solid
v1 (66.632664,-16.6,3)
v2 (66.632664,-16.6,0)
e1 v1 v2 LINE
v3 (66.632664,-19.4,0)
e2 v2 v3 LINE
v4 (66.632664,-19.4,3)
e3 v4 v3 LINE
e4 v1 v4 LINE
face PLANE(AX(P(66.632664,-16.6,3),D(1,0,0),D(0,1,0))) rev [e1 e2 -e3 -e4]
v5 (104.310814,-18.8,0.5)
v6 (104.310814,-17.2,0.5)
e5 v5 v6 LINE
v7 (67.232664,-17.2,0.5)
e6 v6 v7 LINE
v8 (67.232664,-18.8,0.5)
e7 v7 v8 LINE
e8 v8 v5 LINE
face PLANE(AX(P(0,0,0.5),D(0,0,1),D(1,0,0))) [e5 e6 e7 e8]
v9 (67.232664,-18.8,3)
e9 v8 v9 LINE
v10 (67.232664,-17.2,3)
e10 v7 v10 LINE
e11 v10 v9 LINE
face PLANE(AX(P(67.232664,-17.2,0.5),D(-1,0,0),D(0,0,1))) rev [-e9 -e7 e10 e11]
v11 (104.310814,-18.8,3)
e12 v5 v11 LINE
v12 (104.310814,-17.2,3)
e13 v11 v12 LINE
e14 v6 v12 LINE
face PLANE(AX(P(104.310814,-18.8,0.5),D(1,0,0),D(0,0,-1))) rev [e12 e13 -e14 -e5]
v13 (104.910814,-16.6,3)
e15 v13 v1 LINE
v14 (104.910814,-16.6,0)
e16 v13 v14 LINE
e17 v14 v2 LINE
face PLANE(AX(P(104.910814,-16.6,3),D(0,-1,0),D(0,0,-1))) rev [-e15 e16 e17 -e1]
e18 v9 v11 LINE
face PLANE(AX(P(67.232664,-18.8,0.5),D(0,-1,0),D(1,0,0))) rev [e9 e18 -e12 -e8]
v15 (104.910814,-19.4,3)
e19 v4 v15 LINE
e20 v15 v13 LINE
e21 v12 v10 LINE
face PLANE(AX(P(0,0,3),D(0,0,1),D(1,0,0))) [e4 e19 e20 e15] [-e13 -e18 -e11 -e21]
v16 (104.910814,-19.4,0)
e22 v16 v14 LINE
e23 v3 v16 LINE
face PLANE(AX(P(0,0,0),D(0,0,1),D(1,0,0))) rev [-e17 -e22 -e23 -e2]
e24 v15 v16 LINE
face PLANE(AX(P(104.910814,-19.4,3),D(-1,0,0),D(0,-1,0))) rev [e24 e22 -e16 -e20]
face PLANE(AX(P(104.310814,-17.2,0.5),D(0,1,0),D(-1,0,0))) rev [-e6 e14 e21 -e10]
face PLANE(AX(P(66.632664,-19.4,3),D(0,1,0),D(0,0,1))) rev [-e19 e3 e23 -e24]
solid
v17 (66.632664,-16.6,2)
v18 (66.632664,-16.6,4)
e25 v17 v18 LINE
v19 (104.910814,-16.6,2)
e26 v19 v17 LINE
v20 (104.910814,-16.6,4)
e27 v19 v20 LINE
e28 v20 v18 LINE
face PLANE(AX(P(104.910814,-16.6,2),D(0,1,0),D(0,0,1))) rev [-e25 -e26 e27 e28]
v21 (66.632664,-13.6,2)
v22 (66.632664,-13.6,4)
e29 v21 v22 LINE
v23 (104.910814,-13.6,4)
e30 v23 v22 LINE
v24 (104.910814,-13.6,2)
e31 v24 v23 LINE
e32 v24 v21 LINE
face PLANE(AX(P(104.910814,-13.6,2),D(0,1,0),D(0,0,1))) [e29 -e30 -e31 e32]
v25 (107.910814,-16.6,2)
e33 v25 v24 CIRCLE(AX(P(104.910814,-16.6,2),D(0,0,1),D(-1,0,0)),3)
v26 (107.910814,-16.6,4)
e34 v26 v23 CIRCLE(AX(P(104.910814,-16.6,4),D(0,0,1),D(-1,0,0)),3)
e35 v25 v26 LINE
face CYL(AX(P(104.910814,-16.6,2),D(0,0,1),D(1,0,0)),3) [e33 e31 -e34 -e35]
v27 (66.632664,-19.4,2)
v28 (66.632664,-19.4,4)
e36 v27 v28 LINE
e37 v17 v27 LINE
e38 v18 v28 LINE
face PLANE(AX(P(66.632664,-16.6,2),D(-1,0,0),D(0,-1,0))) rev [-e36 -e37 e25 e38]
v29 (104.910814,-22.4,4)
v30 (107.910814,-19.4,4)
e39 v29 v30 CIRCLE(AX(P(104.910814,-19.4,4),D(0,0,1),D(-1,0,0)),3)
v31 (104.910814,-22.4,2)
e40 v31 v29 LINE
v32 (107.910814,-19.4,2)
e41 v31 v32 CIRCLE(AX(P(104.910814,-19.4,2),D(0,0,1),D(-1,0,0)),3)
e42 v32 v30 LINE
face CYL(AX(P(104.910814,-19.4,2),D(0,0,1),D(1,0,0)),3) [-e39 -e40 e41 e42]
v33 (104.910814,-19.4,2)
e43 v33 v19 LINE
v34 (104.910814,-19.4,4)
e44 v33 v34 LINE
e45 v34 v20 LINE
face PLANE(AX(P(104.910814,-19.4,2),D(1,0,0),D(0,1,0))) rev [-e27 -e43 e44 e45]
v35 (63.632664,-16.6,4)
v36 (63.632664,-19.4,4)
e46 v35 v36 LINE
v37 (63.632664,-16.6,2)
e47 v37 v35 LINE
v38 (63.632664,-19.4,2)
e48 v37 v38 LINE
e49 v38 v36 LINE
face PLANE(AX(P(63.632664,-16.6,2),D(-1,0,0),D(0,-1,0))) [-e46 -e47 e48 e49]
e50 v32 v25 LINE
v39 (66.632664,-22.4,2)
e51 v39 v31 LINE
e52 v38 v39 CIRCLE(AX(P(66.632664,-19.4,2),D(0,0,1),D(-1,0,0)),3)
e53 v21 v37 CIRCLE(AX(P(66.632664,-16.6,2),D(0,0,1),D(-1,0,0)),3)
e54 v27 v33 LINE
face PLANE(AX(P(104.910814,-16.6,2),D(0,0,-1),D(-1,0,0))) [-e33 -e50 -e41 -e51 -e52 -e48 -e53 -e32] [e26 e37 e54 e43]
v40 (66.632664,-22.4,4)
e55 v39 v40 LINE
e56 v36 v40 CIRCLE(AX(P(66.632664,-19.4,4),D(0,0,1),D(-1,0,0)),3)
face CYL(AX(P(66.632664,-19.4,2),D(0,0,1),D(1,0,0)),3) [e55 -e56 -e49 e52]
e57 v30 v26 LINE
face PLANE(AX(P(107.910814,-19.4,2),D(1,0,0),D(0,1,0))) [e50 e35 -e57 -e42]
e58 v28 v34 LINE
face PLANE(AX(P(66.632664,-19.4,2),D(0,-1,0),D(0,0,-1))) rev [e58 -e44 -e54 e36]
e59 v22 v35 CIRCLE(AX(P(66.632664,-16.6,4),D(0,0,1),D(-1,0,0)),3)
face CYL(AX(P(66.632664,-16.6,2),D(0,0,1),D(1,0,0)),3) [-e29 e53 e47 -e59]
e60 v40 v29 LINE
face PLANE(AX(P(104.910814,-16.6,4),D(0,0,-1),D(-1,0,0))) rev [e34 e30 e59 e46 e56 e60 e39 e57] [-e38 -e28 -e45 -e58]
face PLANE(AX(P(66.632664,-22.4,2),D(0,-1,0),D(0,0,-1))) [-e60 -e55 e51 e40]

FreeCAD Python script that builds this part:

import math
import FreeCAD as App
import Part
import Sketcher
Q = App.Units.Quantity

doc = App.newDocument("Part")
params = doc.addObject("Spreadsheet::Sheet", "Params")
for row, (alias, value) in enumerate([
    ("sketch1_height", "2.8 mm"),
    ("pad1_length", "3 mm"),
    ("sketch2_height", "1.6 mm"),
    ("pocket1_length", "2.5 mm"),
    ("sketch3_radius", "3 mm"),
    ("sketch3_height", "2.8 mm"),
    ("pad2_length", "1 mm"),
    ("pad2_length2", "1 mm"),
], start=1):
    params.set(f"A{row}", alias)
    params.set(f"B{row}", "=" + value)
    params.setAlias(f"B{row}", alias)

body = doc.addObject("PartDesign::Body", "Body")

# Sketch on XY plane
sketch1 = doc.addObject("Sketcher::SketchObject", "Sketch")
body.addObject(sketch1)
sketch1.AttachmentSupport = (doc.XY_Plane, [""])
sketch1.MapMode = "FlatFace"
sketch1.addGeometry([
    Part.LineSegment(App.Vector(66.632664, -16.6, 0), App.Vector(66.632664, -19.4, 0)),
    Part.LineSegment(App.Vector(66.632664, -19.4, 0), App.Vector(104.910814, -19.4, 0)),
    Part.LineSegment(App.Vector(104.910814, -19.4, 0), App.Vector(104.910814, -16.6, 0)),
    Part.LineSegment(App.Vector(104.910814, -16.6, 0), App.Vector(66.632664, -16.6, 0)),
], False)
sketch1.addConstraint([
    Sketcher.Constraint("Coincident", 0, 2, 1, 1),
    Sketcher.Constraint("Coincident", 1, 2, 2, 1),
    Sketcher.Constraint("Coincident", 2, 2, 3, 1),
    Sketcher.Constraint("Coincident", 3, 2, 0, 1),
    Sketcher.Constraint("Vertical", 0),
    Sketcher.Constraint("Horizontal", 1),
    Sketcher.Constraint("Vertical", 2),
    Sketcher.Constraint("Horizontal", 3),
    Sketcher.Constraint("DistanceY", 0, 2, 0, 1, Q("2.8 mm")),
    Sketcher.Constraint("DistanceY", 0, 2, -1, 1, Q("19.4 mm")),
    Sketcher.Constraint("DistanceX", 1, 1, 1, 2, Q("38.278151 mm")),
    Sketcher.Constraint("DistanceX", -1, 1, 0, 2, Q("66.632664 mm")),
])
sketch1.setExpression("Constraints[8]", "Params.sketch1_height")
pad1 = doc.addObject("PartDesign::Pad", "Pad")
body.addObject(pad1)
pad1.Profile = sketch1
pad1.setExpression("Length", "Params.pad1_length")

# Sketch on XY plane
sketch2 = doc.addObject("Sketcher::SketchObject", "Sketch001")
body.addObject(sketch2)
sketch2.AttachmentSupport = (doc.XY_Plane, [""])
sketch2.MapMode = "FlatFace"
sketch2.AttachmentOffset = App.Placement(App.Vector(0, 0, 3), App.Rotation())
sketch2.addGeometry([
    Part.LineSegment(App.Vector(67.232664, -17.2, 0), App.Vector(67.232664, -18.8, 0)),
    Part.LineSegment(App.Vector(67.232664, -18.8, 0), App.Vector(104.310814, -18.8, 0)),
    Part.LineSegment(App.Vector(104.310814, -18.8, 0), App.Vector(104.310814, -17.2, 0)),
    Part.LineSegment(App.Vector(104.310814, -17.2, 0), App.Vector(67.232664, -17.2, 0)),
], False)
sketch2.addConstraint([
    Sketcher.Constraint("Coincident", 0, 2, 1, 1),
    Sketcher.Constraint("Coincident", 1, 2, 2, 1),
    Sketcher.Constraint("Coincident", 2, 2, 3, 1),
    Sketcher.Constraint("Coincident", 3, 2, 0, 1),
    Sketcher.Constraint("Vertical", 0),
    Sketcher.Constraint("Horizontal", 1),
    Sketcher.Constraint("Vertical", 2),
    Sketcher.Constraint("Horizontal", 3),
    Sketcher.Constraint("DistanceY", 0, 2, 0, 1, Q("1.6 mm")),
    Sketcher.Constraint("DistanceY", 0, 2, -1, 1, Q("18.8 mm")),
    Sketcher.Constraint("DistanceX", 1, 1, 1, 2, Q("37.078151 mm")),
    Sketcher.Constraint("DistanceX", -1, 1, 0, 2, Q("67.232664 mm")),
])
sketch2.setExpression("Constraints[8]", "Params.sketch2_height")
pocket1 = doc.addObject("PartDesign::Pocket", "Pocket")
body.addObject(pocket1)
pocket1.Profile = sketch2
pocket1.setExpression("Length", "Params.pocket1_length")
body2 = doc.addObject("PartDesign::Body", "Body001")

# Sketch on XY plane
sketch3 = doc.addObject("Sketcher::SketchObject", "Sketch002")
body2.addObject(sketch3)
sketch3.AttachmentSupport = (doc.getObject("XY_Plane001"), [""])
sketch3.MapMode = "FlatFace"
sketch3.AttachmentOffset = App.Placement(App.Vector(0, 0, 3), App.Rotation())
sketch3.addGeometry([
    Part.LineSegment(App.Vector(104.910814, -13.6, 0), App.Vector(66.632664, -13.6, 0)),  # 0
    Part.ArcOfCircle(Part.Circle(App.Vector(66.632664, -16.6, 0), App.Vector(0, 0, 1), 3), math.radians(90), math.radians(180)),  # 1
    Part.LineSegment(App.Vector(63.632664, -16.6, 0), App.Vector(63.632664, -19.4, 0)),  # 2
    Part.ArcOfCircle(Part.Circle(App.Vector(66.632664, -19.4, 0), App.Vector(0, 0, 1), 3), math.radians(-180), math.radians(-90)),  # 3
    Part.LineSegment(App.Vector(66.632664, -22.4, 0), App.Vector(104.910814, -22.4, 0)),  # 4
    Part.ArcOfCircle(Part.Circle(App.Vector(104.910814, -19.4, 0), App.Vector(0, 0, 1), 3), math.radians(-90), math.radians(0)),  # 5
    Part.LineSegment(App.Vector(107.910814, -19.4, 0), App.Vector(107.910814, -16.6, 0)),  # 6
    Part.ArcOfCircle(Part.Circle(App.Vector(104.910814, -16.6, 0), App.Vector(0, 0, 1), 3), math.radians(0), math.radians(90)),  # 7
    Part.LineSegment(App.Vector(104.910814, -19.4, 0), App.Vector(66.632664, -19.4, 0)),  # 8
    Part.LineSegment(App.Vector(66.632664, -19.4, 0), App.Vector(66.632664, -16.6, 0)),  # 9
    Part.LineSegment(App.Vector(66.632664, -16.6, 0), App.Vector(104.910814, -16.6, 0)),  # 10
    Part.LineSegment(App.Vector(104.910814, -16.6, 0), App.Vector(104.910814, -19.4, 0)),  # 11
], False)
sketch3.addConstraint([
    Sketcher.Constraint("Tangent", 0, 2, 1, 1),
    Sketcher.Constraint("Tangent", 1, 2, 2, 1),
    Sketcher.Constraint("Tangent", 2, 2, 3, 1),
    Sketcher.Constraint("Tangent", 3, 2, 4, 1),
    Sketcher.Constraint("Tangent", 4, 2, 5, 1),
    Sketcher.Constraint("Tangent", 5, 2, 6, 1),
    Sketcher.Constraint("Tangent", 6, 2, 7, 1),
    Sketcher.Constraint("Tangent", 7, 2, 0, 1),
    Sketcher.Constraint("Coincident", 8, 2, 9, 1),
    Sketcher.Constraint("Coincident", 9, 2, 10, 1),
    Sketcher.Constraint("Coincident", 10, 2, 11, 1),
    Sketcher.Constraint("Coincident", 11, 2, 8, 1),
    Sketcher.Constraint("Horizontal", 0),
    Sketcher.Constraint("Vertical", 2),
    Sketcher.Constraint("Horizontal", 4),
    Sketcher.Constraint("Vertical", 6),
    Sketcher.Constraint("Horizontal", 8),
    Sketcher.Constraint("Vertical", 9),
    Sketcher.Constraint("Horizontal", 10),
    Sketcher.Constraint("Vertical", 11),
    Sketcher.Constraint("Coincident", 8, 2, 3, 3),
    Sketcher.Constraint("Coincident", 9, 2, 1, 3),
    Sketcher.Constraint("Coincident", 10, 2, 7, 3),
    Sketcher.Constraint("Equal", 3, 5),
    Sketcher.Constraint("Radius", 1, Q("3 mm")),
    Sketcher.Constraint("DistanceY", 2, 2, 2, 1, Q("2.8 mm")),
    Sketcher.Constraint("DistanceY", 1, 3, -1, 1, Q("16.6 mm")),
    Sketcher.Constraint("DistanceX", 0, 2, 0, 1, Q("38.278151 mm")),
    Sketcher.Constraint("DistanceX", -1, 1, 1, 3, Q("66.632664 mm")),
])
sketch3.setExpression("Constraints[24]", "Params.sketch3_radius")
sketch3.setExpression("Constraints[25]", "Params.sketch3_height")
pad2 = doc.addObject("PartDesign::Pad", "Pad001")
body2.addObject(pad2)
pad2.Profile = sketch3
pad2.Type = "TwoLengths"
pad2.setExpression("Length", "Params.pad2_length")
pad2.setExpression("Length2", "Params.pad2_length2")

doc.recompute()
